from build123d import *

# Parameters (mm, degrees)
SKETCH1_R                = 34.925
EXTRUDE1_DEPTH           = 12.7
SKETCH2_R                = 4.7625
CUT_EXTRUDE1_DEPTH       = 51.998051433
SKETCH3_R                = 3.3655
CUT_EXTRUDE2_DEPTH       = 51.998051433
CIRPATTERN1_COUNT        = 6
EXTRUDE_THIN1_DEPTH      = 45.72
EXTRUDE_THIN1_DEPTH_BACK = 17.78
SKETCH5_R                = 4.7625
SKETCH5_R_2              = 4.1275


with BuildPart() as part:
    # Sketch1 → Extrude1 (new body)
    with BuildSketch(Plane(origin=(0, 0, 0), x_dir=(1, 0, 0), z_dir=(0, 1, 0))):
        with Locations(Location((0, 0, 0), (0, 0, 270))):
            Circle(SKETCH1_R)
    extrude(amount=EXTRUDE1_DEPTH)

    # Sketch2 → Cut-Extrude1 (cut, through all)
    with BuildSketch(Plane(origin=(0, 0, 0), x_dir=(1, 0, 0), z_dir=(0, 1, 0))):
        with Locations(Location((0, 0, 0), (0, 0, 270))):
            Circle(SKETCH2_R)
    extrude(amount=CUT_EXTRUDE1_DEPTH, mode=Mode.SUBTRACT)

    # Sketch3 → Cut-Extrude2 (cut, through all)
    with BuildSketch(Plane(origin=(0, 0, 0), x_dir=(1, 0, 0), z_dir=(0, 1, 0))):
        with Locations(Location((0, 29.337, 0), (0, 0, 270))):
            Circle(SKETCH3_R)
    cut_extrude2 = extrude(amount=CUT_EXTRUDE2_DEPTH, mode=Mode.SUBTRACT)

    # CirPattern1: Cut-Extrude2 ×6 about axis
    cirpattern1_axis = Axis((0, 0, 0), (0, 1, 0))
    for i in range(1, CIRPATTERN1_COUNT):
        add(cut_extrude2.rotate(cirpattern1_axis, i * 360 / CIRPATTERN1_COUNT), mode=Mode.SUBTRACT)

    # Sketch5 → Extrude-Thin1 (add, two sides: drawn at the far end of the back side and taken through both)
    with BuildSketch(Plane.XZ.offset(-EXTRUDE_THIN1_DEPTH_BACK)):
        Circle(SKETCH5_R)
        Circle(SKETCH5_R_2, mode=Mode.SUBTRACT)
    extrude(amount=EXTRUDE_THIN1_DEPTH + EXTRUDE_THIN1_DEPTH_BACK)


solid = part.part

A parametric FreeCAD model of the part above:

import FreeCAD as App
import Part
import Sketcher
from FreeCAD import Vector
Q = App.Units.Quantity

doc = App.newDocument("Part")
params = doc.addObject("Spreadsheet::Sheet", "Params")
for row, (alias, value) in enumerate([
    ("sketch1_diameter", "2.75 in"),
    ("pad1_length", "0.5 in"),
    ("sketch2_diameter", "0.375 in"),
    ("sketch3_diameter", "0.265 in"),
    ("sketch4_diameter", "0.375 in"),
    ("sketch4_diameter2", "0.325 in"),
    ("pad2_length", "1.8 in"),
    ("pad2_length2", "0.7 in"),
], start=1):
    params.set(f"A{row}", alias)
    params.set(f"B{row}", "=" + value)
    params.setAlias(f"B{row}", alias)

body = doc.addObject("PartDesign::Body", "Body")

# Sketch on XZ plane
sketch1 = doc.addObject("Sketcher::SketchObject", "Sketch")
body.addObject(sketch1)
sketch1.AttachmentSupport = (doc.XZ_Plane, [""])
sketch1.MapMode = "FlatFace"
sketch1.addGeometry(Part.Circle(Vector(0, 0, 0), Vector(0, 0, 1), 35), False)
sketch1.addConstraint([
    Sketcher.Constraint("Coincident", 0, 3, -1, 1),
    Sketcher.Constraint("Diameter", 0, Q("2.75 in")),
])
sketch1.setExpression("Constraints[1]", "Params.sketch1_diameter")
pad1 = doc.addObject("PartDesign::Pad", "Pad")
body.addObject(pad1)
pad1.Profile = sketch1
pad1.setExpression("Length", "Params.pad1_length")
pad1.Reversed = True

# Sketch on XZ plane
sketch2 = doc.addObject("Sketcher::SketchObject", "Sketch001")
body.addObject(sketch2)
sketch2.AttachmentSupport = (doc.XZ_Plane, [""])
sketch2.MapMode = "FlatFace"
sketch2.addGeometry(Part.Circle(Vector(0, 0, 0), Vector(0, 0, 1), 4.8), False)
sketch2.addConstraint([
    Sketcher.Constraint("Coincident", 0, 3, -1, 1),
    Sketcher.Constraint("Diameter", 0, Q("0.375 in")),
])
sketch2.setExpression("Constraints[1]", "Params.sketch2_diameter")
pocket1 = doc.addObject("PartDesign::Pocket", "Pocket")
body.addObject(pocket1)
pocket1.Profile = sketch2
pocket1.Type = "ThroughAll"

# Sketch on XZ plane
sketch3 = doc.addObject("Sketcher::SketchObject", "Sketch002")
body.addObject(sketch3)
sketch3.AttachmentSupport = (doc.XZ_Plane, [""])
sketch3.MapMode = "FlatFace"
sketch3.addGeometry(Part.Circle(Vector(0, -29.3, 0), Vector(0, 0, 1), 3.4), False)
sketch3.addConstraint([
    Sketcher.Constraint("PointOnObject", 0, 3, -2),
    Sketcher.Constraint("Diameter", 0, Q("0.265 in")),
    Sketcher.Constraint("DistanceY", 0, 3, -1, 1, Q("1.155 in")),
])
sketch3.setExpression("Constraints[1]", "Params.sketch3_diameter")
pocket2 = doc.addObject("PartDesign::Pocket", "Pocket001")
body.addObject(pocket2)
pocket2.Profile = sketch3
pocket2.Type = "ThroughAll"
doc.recompute()

polarpattern = doc.addObject("PartDesign::PolarPattern", "PolarPattern")
body.addObject(polarpattern)
polarpattern.Originals = [pocket2]
polarpattern.Axis = (doc.Y_Axis, [""])
polarpattern.Angle = 360
polarpattern.Occurrences = 6
body.Tip = polarpattern

# Sketch on XZ plane
sketch4 = doc.addObject("Sketcher::SketchObject", "Sketch003")
body.addObject(sketch4)
sketch4.AttachmentSupport = (doc.XZ_Plane, [""])
sketch4.MapMode = "FlatFace"
sketch4.addGeometry([
    Part.Circle(Vector(0, 0, 0), Vector(0, 0, 1), 4.8),
    Part.Circle(Vector(0, 0, 0), Vector(0, 0, 1), 4.1),
], False)
sketch4.addConstraint([
    Sketcher.Constraint("Coincident", 0, 3, -1, 1),
    Sketcher.Constraint("Coincident", 1, 3, -1, 1),
    Sketcher.Constraint("Diameter", 0, Q("0.375 in")),
    Sketcher.Constraint("Diameter", 1, Q("0.325 in")),
])
sketch4.setExpression("Constraints[2]", "Params.sketch4_diameter")
sketch4.setExpression("Constraints[3]", "Params.sketch4_diameter2")
pad2 = doc.addObject("PartDesign::Pad", "Pad001")
body.addObject(pad2)
pad2.Profile = sketch4
pad2.Type = "TwoLengths"
pad2.setExpression("Length", "Params.pad2_length")
pad2.setExpression("Length2", "Params.pad2_length2")

doc.recompute()
